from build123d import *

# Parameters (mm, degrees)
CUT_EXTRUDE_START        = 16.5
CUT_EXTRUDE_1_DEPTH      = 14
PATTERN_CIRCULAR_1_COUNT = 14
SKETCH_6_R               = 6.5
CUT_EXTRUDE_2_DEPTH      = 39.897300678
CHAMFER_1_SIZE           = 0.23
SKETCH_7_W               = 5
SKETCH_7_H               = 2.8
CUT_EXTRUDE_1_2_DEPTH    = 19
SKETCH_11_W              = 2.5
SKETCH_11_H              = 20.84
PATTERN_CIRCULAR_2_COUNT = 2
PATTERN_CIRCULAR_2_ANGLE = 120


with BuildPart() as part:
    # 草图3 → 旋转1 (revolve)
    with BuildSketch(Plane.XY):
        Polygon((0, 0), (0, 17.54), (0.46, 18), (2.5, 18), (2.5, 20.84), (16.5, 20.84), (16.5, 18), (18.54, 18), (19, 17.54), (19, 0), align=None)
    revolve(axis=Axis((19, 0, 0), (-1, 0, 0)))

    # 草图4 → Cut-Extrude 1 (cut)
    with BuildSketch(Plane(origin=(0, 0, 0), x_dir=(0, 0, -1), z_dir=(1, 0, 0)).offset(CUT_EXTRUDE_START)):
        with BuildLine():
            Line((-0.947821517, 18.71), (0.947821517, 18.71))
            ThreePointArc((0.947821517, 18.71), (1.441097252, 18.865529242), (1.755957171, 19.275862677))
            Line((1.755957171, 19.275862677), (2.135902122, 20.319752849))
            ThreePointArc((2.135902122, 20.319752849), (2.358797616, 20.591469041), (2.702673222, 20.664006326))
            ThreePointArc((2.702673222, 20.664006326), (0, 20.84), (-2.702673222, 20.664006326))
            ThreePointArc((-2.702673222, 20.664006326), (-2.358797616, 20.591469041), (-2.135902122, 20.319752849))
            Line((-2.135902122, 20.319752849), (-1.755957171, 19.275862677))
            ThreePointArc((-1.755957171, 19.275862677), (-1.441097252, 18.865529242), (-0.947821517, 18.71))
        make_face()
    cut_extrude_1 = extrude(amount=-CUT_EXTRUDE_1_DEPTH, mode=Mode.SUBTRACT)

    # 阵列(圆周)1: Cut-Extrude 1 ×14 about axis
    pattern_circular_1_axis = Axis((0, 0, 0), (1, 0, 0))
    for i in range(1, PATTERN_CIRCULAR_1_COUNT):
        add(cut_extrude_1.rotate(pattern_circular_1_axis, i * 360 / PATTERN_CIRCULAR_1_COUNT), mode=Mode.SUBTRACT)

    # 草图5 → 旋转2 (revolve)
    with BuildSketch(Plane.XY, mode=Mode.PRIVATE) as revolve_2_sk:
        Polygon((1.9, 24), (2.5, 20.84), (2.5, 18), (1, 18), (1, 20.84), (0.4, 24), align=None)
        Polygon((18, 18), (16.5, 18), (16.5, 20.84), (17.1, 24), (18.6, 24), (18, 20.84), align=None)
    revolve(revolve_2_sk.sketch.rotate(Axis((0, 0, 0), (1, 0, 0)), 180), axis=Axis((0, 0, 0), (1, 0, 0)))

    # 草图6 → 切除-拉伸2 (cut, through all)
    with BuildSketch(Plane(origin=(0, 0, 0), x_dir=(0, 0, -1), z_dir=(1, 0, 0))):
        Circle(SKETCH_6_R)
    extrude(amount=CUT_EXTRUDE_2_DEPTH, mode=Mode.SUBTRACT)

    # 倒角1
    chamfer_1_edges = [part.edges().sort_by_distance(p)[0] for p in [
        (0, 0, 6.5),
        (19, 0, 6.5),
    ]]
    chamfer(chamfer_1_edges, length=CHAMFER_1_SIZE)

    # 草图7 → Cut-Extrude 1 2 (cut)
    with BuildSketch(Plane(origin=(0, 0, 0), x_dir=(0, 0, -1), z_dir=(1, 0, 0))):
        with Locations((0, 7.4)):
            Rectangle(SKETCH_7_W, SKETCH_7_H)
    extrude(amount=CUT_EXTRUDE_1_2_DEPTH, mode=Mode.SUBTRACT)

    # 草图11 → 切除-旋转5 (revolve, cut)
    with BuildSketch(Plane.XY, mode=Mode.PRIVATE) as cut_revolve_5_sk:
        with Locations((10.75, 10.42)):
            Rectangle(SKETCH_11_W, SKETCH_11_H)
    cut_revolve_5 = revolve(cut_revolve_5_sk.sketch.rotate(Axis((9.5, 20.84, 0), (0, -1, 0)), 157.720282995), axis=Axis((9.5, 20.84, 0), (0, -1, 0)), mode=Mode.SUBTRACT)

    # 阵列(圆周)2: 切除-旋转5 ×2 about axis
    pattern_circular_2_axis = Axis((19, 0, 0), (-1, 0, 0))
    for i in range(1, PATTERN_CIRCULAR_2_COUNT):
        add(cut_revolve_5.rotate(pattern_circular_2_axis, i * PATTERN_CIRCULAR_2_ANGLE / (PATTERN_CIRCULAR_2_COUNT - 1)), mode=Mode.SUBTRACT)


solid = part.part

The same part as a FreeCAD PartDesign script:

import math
import FreeCAD as App
import Part
import Sketcher

V = App.Vector
Q = App.Units.Quantity


def edges_at(feature, points):
    """Names of the edges that pass closest to the given points."""
    edges = feature.Shape.Edges
    near = lambda p: min(range(len(edges)), key=lambda i: edges[i].distToShape(Part.Vertex(*p))[0])
    return sorted({f"Edge{near(p) + 1}" for p in points})


def add_polygon(sketch, points):
    """Adds a closed chain of lines whose ends are joined by coincident constraints."""
    first, n = sketch.GeometryCount, len(points)
    for a, b in zip(points, points[1:] + points[:1]):
        sketch.addGeometry(Part.LineSegment(App.Vector(*a, 0), App.Vector(*b, 0)), False)
    for i in range(n):
        sketch.addConstraint(Sketcher.Constraint("Coincident", first + i, 2, first + (i + 1) % n, 1))

doc = App.newDocument("Part")
params = doc.addObject("Spreadsheet::Sheet", "Params")
for row, (alias, value) in enumerate([
    ("sketch1_width", "19 mm"),
    ("sketch1_width2", "14 mm"),
    ("sketch1_width3", "2.04 mm"),
    ("sketch1_height", "2.84 mm"),
    ("revolution_angle", "360 deg"),
    ("sketch2_radius", "0.86 mm"),
    ("sketch2_radius2", "0.53 mm"),
    ("sketch2_radius3", "20.84 mm"),
    ("pocket1_length", "14 mm"),
    ("sketch3_width", "1.5 mm"),
    ("sketch3_height", "2.84 mm"),
    ("revolution2_angle", "360 deg"),
    ("sketch4_diameter", "13 mm"),
    ("chamfer_size", "0.23 mm"),
    ("sketch5_height", "5 mm"),
    ("sketch5_width", "2.8 mm"),
    ("pocket3_length", "19 mm"),
    ("sketch6_width", "2.5 mm"),
    ("sketch6_height", "20.84 mm"),
    ("groove_angle", "360 deg"),
], start=1):
    params.set(f"A{row}", alias)
    params.set(f"B{row}", "=" + value)
    params.setAlias(f"B{row}", alias)

body = doc.addObject("PartDesign::Body", "Body")

sketch1 = doc.addObject("Sketcher::SketchObject", "Sketch")
body.addObject(sketch1)
sketch1.AttachmentSupport = (doc.XY_Plane, [""])
sketch1.MapMode = "FlatFace"
add_polygon(sketch1, [(0, 17.54), (0, 0), (19, 0), (19, 17.54), (18.54, 18), (16.5, 18), (16.5, 20.84), (2.5, 20.84), (2.5, 18), (0.46, 18)])
sketch1.addConstraint(Sketcher.Constraint("Vertical", 0))
sketch1.addConstraint(Sketcher.Constraint("Horizontal", 1))
sketch1.addConstraint(Sketcher.Constraint("Vertical", 2))
sketch1.addConstraint(Sketcher.Constraint("Horizontal", 4))
sketch1.addConstraint(Sketcher.Constraint("Vertical", 5))
sketch1.addConstraint(Sketcher.Constraint("Horizontal", 6))
sketch1.addConstraint(Sketcher.Constraint("Vertical", 7))
sketch1.addConstraint(Sketcher.Constraint("Horizontal", 8))
sketch1.addConstraint(Sketcher.Constraint("Coincident", 0, 2, -1, 1))
sketch1.addConstraint(Sketcher.Constraint("Perpendicular", 3, 9))
sketch1.addConstraint(Sketcher.Constraint("Horizontal", 4, 2, 7, 2))
sketch1.addConstraint(Sketcher.Constraint("Horizontal", 2, 2, 9, 2))
sketch1.addConstraint(Sketcher.Constraint("Equal", 4, 8))
sketch1.addConstraint(Sketcher.Constraint("Equal", 3, 9))
sketch1.addConstraint(Sketcher.Constraint("DistanceX", 1, 1, 1, 2, Q("19 mm")))
sketch1.addConstraint(Sketcher.Constraint("DistanceX", 6, 2, 6, 1, Q("14 mm")))
sketch1.addConstraint(Sketcher.Constraint("DistanceY", -1, 1, 3, 2, Q("18 mm")))
sketch1.addConstraint(Sketcher.Constraint("DistanceX", 4, 2, 4, 1, Q("2.04 mm")))
sketch1.addConstraint(Sketcher.Constraint("DistanceY", 5, 1, 5, 2, Q("2.84 mm")))
sketch1.setExpression("Constraints[24]", "Params.sketch1_width")
sketch1.setExpression("Constraints[25]", "Params.sketch1_width2")
sketch1.setExpression("Constraints[27]", "Params.sketch1_width3")
sketch1.setExpression("Constraints[28]", "Params.sketch1_height")
revolution = doc.addObject("PartDesign::Revolution", "Revolution")
body.addObject(revolution)
revolution.Profile = sketch1
revolution.ReferenceAxis = (sketch1, ["H_Axis"])
revolution.setExpression("Angle", "Params.revolution_angle")

sketch2 = doc.addObject("Sketcher::SketchObject", "Sketch001")
body.addObject(sketch2)
sketch2.AttachmentSupport = (doc.YZ_Plane, [""])
sketch2.MapMode = "FlatFace"
sketch2.AttachmentOffset = App.Placement(V(0, 0, 16.5), App.Rotation())
sketch2.addGeometry(Part.LineSegment(V(18.71, 0.947822, 0), V(18.71, -0.947822, 0)), False)
sketch2.addGeometry(Part.ArcOfCircle(Part.Circle(V(19.57, -0.947822, 0), V(0, 0, 1), 0.86), math.radians(-180), math.radians(-110)), False)
sketch2.addGeometry(Part.LineSegment(V(19.275863, -1.755957, 0), V(20.319753, -2.135902, 0)), False)
sketch2.addGeometry(Part.ArcOfCircle(Part.Circle(V(20.138482, -2.633939, 0), V(0, 0, 1), 0.53), math.radians(-7.451495), math.radians(70)), False)
sketch2.addGeometry(Part.ArcOfCircle(Part.Circle(V(0, 0, 0), V(0, 0, 1), 20.84), math.radians(-7.451495), math.radians(7.451495)), False)
sketch2.addGeometry(Part.ArcOfCircle(Part.Circle(V(20.138482, 2.633939, 0), V(0, 0, 1), 0.53), math.radians(-70), math.radians(7.451495)), False)
sketch2.addGeometry(Part.LineSegment(V(20.319753, 2.135902, 0), V(19.275863, 1.755957, 0)), False)
sketch2.addGeometry(Part.ArcOfCircle(Part.Circle(V(19.57, 0.947822, 0), V(0, 0, 1), 0.86), math.radians(110), math.radians(180)), False)
sketch2.addConstraint(Sketcher.Constraint("Tangent", 0, 2, 1, 1))
sketch2.addConstraint(Sketcher.Constraint("Tangent", 1, 2, 2, 1))
sketch2.addConstraint(Sketcher.Constraint("Tangent", 2, 2, 3, 2))
sketch2.addConstraint(Sketcher.Constraint("Tangent", 3, 1, 4, 1))
sketch2.addConstraint(Sketcher.Constraint("Tangent", 4, 2, 5, 2))
sketch2.addConstraint(Sketcher.Constraint("Tangent", 5, 1, 6, 1))
sketch2.addConstraint(Sketcher.Constraint("Tangent", 6, 2, 7, 1))
sketch2.addConstraint(Sketcher.Constraint("Tangent", 7, 2, 0, 1))
sketch2.addConstraint(Sketcher.Constraint("Vertical", 0))
sketch2.addConstraint(Sketcher.Constraint("Coincident", 4, 3, -1, 1))
sketch2.addConstraint(Sketcher.Constraint("Equal", 3, 5))
sketch2.addConstraint(Sketcher.Constraint("Equal", 1, 7))
sketch2.addConstraint(Sketcher.Constraint("Symmetric", 2, 2, 5, 1, -1))
sketch2.addConstraint(Sketcher.Constraint("Angle", 2, Q("-20 deg")))
sketch2.addConstraint(Sketcher.Constraint("Radius", 1, Q("0.86 mm")))
sketch2.addConstraint(Sketcher.Constraint("Radius", 3, Q("0.53 mm")))
sketch2.addConstraint(Sketcher.Constraint("Radius", 4, Q("20.84 mm")))
sketch2.addConstraint(Sketcher.Constraint("DistanceX", -1, 1, 1, 3, Q("19.57 mm")))
sketch2.addConstraint(Sketcher.Constraint("DistanceY", 0, 2, 0, 1, Q("1.895643 mm")))
sketch2.setExpression("Constraints[14]", "Params.sketch2_radius")
sketch2.setExpression("Constraints[15]", "Params.sketch2_radius2")
sketch2.setExpression("Constraints[16]", "Params.sketch2_radius3")
pocket1 = doc.addObject("PartDesign::Pocket", "Pocket")
body.addObject(pocket1)
pocket1.Profile = sketch2
pocket1.setExpression("Length", "Params.pocket1_length")
doc.recompute()

polarpattern = doc.addObject("PartDesign::PolarPattern", "PolarPattern")
body.addObject(polarpattern)
polarpattern.Originals = [pocket1]
polarpattern.Axis = (doc.X_Axis, [""])
polarpattern.Angle = 360
polarpattern.Occurrences = 14
body.Tip = polarpattern

sketch3 = doc.addObject("Sketcher::SketchObject", "Sketch002")
body.addObject(sketch3)
sketch3.AttachmentSupport = (doc.XY_Plane, [""])
sketch3.MapMode = "FlatFace"
add_polygon(sketch3, [(2.5, 20.84), (1.9, 24), (0.4, 24), (1, 20.84), (1, 18), (2.5, 18)])
add_polygon(sketch3, [(16.5, 18), (18, 18), (18, 20.84), (18.6, 24), (17.1, 24), (16.5, 20.84)])
sketch3.addConstraint(Sketcher.Constraint("Horizontal", 1))
sketch3.addConstraint(Sketcher.Constraint("Vertical", 3))
sketch3.addConstraint(Sketcher.Constraint("Horizontal", 4))
sketch3.addConstraint(Sketcher.Constraint("Vertical", 5))
sketch3.addConstraint(Sketcher.Constraint("Horizontal", 6))
sketch3.addConstraint(Sketcher.Constraint("Vertical", 7))
sketch3.addConstraint(Sketcher.Constraint("Horizontal", 9))
sketch3.addConstraint(Sketcher.Constraint("Vertical", 11))
sketch3.addConstraint(Sketcher.Constraint("Parallel", 0, 2))
sketch3.addConstraint(Sketcher.Constraint("Parallel", 8, 10))
sketch3.addConstraint(Sketcher.Constraint("Horizontal", 2, 2, 5, 2))
sketch3.addConstraint(Sketcher.Constraint("Horizontal", 4, 2, 6, 2))
sketch3.addConstraint(Sketcher.Constraint("Horizontal", 5, 2, 7, 2))
sketch3.addConstraint(Sketcher.Constraint("Horizontal", 1, 2, 8, 2))
sketch3.addConstraint(Sketcher.Constraint("Horizontal", 7, 2, 10, 2))
sketch3.addConstraint(Sketcher.Constraint("Equal", 4, 6))
sketch3.addConstraint(Sketcher.Constraint("Equal", 2, 8))
sketch3.addConstraint(Sketcher.Constraint("DistanceX", 1, 2, 1, 1, Q("1.5 mm")))
sketch3.addConstraint(Sketcher.Constraint("DistanceY", -1, 1, 0, 2, Q("24 mm")))
sketch3.addConstraint(Sketcher.Constraint("DistanceX", -1, 1, 2, 2, Q("1 mm")))
sketch3.addConstraint(Sketcher.Constraint("DistanceY", -1, 1, 3, 2, Q("18 mm")))
sketch3.addConstraint(Sketcher.Constraint("DistanceX", -1, 1, 6, 2, Q("18 mm")))
sketch3.addConstraint(Sketcher.Constraint("DistanceY", 3, 2, 3, 1, Q("2.84 mm")))
sketch3.addConstraint(Sketcher.Constraint("DistanceX", -1, 1, 0, 2, Q("1.9 mm")))
sketch3.setExpression("Constraints[29]", "Params.sketch3_width")
sketch3.setExpression("Constraints[34]", "Params.sketch3_height")
revolution2 = doc.addObject("PartDesign::Revolution", "Revolution001")
body.addObject(revolution2)
revolution2.Profile = sketch3
revolution2.ReferenceAxis = (sketch3, ["H_Axis"])
revolution2.setExpression("Angle", "Params.revolution2_angle")

sketch4 = doc.addObject("Sketcher::SketchObject", "Sketch003")
body.addObject(sketch4)
sketch4.AttachmentSupport = (doc.YZ_Plane, [""])
sketch4.MapMode = "FlatFace"
sketch4.addGeometry(Part.Circle(V(0, 0, 0), V(0, 0, 1), 6.5), False)
sketch4.addConstraint(Sketcher.Constraint("Coincident", 0, 3, -1, 1))
sketch4.addConstraint(Sketcher.Constraint("Diameter", 0, Q("13 mm")))
sketch4.setExpression("Constraints[1]", "Params.sketch4_diameter")
pocket2 = doc.addObject("PartDesign::Pocket", "Pocket001")
body.addObject(pocket2)
pocket2.Profile = sketch4
pocket2.Type = "ThroughAll"
pocket2.Reversed = True
doc.recompute()

chamfer = doc.addObject("PartDesign::Chamfer", "Chamfer")
body.addObject(chamfer)
chamfer.Base = (pocket2, edges_at(pocket2, [(0, 0, 6.5), (19, 0, 6.5)]))
chamfer.setExpression("Size", "Params.chamfer_size")

sketch5 = doc.addObject("Sketcher::SketchObject", "Sketch004")
body.addObject(sketch5)
sketch5.AttachmentSupport = (doc.YZ_Plane, [""])
sketch5.MapMode = "FlatFace"
add_polygon(sketch5, [(8.8, 2.5), (6, 2.5), (6, -2.5), (8.8, -2.5)])
sketch5.addConstraint(Sketcher.Constraint("Horizontal", 0))
sketch5.addConstraint(Sketcher.Constraint("Vertical", 1))
sketch5.addConstraint(Sketcher.Constraint("Horizontal", 2))
sketch5.addConstraint(Sketcher.Constraint("Vertical", 3))
sketch5.addConstraint(Sketcher.Constraint("DistanceY", 1, 2, 1, 1, Q("5 mm")))
sketch5.addConstraint(Sketcher.Constraint("DistanceX", 0, 2, 0, 1, Q("2.8 mm")))
sketch5.addConstraint(Sketcher.Constraint("DistanceX", -1, 1, 0, 2, Q("6 mm")))
sketch5.addConstraint(Sketcher.Constraint("DistanceY", -1, 1, 0, 2, Q("2.5 mm")))
sketch5.setExpression("Constraints[8]", "Params.sketch5_height")
sketch5.setExpression("Constraints[9]", "Params.sketch5_width")
pocket3 = doc.addObject("PartDesign::Pocket", "Pocket002")
body.addObject(pocket3)
pocket3.Profile = sketch5
pocket3.setExpression("Length", "Params.pocket3_length")
pocket3.Reversed = True

sketch6 = doc.addObject("Sketcher::SketchObject", "Sketch005")
body.addObject(sketch6)
sketch6.AttachmentSupport = (doc.XY_Plane, [""])
sketch6.MapMode = "FlatFace"
add_polygon(sketch6, [(9.5, 20.84), (9.5, 0), (12, 0), (12, 20.84)])
sketch6.addGeometry(Part.LineSegment(V(9.5, 20.84, 0), V(9.5, 0, 0)), True)
sketch6.addConstraint(Sketcher.Constraint("Vertical", 0))
sketch6.addConstraint(Sketcher.Constraint("Horizontal", 1))
sketch6.addConstraint(Sketcher.Constraint("Vertical", 2))
sketch6.addConstraint(Sketcher.Constraint("Horizontal", 3))
sketch6.addConstraint(Sketcher.Constraint("Vertical", 4))
sketch6.addConstraint(Sketcher.Constraint("Coincident", 4, 1, 3, 2))
sketch6.addConstraint(Sketcher.Constraint("PointOnObject", 0, 2, -1))
sketch6.addConstraint(Sketcher.Constraint("PointOnObject", 4, 2, -1))
sketch6.addConstraint(Sketcher.Constraint("DistanceX", 1, 1, 1, 2, Q("2.5 mm")))
sketch6.addConstraint(Sketcher.Constraint("DistanceX", -1, 1, 1, 2, Q("12 mm")))
sketch6.addConstraint(Sketcher.Constraint("DistanceY", 0, 2, 0, 1, Q("20.84 mm")))
sketch6.setExpression("Constraints[12]", "Params.sketch6_width")
sketch6.setExpression("Constraints[14]", "Params.sketch6_height")
groove = doc.addObject("PartDesign::Groove", "Groove")
body.addObject(groove)
groove.Profile = sketch6
groove.ReferenceAxis = (sketch6, ["Axis0"])
groove.setExpression("Angle", "Params.groove_angle")
doc.recompute()

polarpattern2 = doc.addObject("PartDesign::PolarPattern", "PolarPattern001")
body.addObject(polarpattern2)
polarpattern2.Originals = [groove]
polarpattern2.Axis = (doc.X_Axis, [""])
polarpattern2.Angle = 120
polarpattern2.Occurrences = 2
polarpattern2.Reversed = True
body.Tip = polarpattern2

doc.recompute()
